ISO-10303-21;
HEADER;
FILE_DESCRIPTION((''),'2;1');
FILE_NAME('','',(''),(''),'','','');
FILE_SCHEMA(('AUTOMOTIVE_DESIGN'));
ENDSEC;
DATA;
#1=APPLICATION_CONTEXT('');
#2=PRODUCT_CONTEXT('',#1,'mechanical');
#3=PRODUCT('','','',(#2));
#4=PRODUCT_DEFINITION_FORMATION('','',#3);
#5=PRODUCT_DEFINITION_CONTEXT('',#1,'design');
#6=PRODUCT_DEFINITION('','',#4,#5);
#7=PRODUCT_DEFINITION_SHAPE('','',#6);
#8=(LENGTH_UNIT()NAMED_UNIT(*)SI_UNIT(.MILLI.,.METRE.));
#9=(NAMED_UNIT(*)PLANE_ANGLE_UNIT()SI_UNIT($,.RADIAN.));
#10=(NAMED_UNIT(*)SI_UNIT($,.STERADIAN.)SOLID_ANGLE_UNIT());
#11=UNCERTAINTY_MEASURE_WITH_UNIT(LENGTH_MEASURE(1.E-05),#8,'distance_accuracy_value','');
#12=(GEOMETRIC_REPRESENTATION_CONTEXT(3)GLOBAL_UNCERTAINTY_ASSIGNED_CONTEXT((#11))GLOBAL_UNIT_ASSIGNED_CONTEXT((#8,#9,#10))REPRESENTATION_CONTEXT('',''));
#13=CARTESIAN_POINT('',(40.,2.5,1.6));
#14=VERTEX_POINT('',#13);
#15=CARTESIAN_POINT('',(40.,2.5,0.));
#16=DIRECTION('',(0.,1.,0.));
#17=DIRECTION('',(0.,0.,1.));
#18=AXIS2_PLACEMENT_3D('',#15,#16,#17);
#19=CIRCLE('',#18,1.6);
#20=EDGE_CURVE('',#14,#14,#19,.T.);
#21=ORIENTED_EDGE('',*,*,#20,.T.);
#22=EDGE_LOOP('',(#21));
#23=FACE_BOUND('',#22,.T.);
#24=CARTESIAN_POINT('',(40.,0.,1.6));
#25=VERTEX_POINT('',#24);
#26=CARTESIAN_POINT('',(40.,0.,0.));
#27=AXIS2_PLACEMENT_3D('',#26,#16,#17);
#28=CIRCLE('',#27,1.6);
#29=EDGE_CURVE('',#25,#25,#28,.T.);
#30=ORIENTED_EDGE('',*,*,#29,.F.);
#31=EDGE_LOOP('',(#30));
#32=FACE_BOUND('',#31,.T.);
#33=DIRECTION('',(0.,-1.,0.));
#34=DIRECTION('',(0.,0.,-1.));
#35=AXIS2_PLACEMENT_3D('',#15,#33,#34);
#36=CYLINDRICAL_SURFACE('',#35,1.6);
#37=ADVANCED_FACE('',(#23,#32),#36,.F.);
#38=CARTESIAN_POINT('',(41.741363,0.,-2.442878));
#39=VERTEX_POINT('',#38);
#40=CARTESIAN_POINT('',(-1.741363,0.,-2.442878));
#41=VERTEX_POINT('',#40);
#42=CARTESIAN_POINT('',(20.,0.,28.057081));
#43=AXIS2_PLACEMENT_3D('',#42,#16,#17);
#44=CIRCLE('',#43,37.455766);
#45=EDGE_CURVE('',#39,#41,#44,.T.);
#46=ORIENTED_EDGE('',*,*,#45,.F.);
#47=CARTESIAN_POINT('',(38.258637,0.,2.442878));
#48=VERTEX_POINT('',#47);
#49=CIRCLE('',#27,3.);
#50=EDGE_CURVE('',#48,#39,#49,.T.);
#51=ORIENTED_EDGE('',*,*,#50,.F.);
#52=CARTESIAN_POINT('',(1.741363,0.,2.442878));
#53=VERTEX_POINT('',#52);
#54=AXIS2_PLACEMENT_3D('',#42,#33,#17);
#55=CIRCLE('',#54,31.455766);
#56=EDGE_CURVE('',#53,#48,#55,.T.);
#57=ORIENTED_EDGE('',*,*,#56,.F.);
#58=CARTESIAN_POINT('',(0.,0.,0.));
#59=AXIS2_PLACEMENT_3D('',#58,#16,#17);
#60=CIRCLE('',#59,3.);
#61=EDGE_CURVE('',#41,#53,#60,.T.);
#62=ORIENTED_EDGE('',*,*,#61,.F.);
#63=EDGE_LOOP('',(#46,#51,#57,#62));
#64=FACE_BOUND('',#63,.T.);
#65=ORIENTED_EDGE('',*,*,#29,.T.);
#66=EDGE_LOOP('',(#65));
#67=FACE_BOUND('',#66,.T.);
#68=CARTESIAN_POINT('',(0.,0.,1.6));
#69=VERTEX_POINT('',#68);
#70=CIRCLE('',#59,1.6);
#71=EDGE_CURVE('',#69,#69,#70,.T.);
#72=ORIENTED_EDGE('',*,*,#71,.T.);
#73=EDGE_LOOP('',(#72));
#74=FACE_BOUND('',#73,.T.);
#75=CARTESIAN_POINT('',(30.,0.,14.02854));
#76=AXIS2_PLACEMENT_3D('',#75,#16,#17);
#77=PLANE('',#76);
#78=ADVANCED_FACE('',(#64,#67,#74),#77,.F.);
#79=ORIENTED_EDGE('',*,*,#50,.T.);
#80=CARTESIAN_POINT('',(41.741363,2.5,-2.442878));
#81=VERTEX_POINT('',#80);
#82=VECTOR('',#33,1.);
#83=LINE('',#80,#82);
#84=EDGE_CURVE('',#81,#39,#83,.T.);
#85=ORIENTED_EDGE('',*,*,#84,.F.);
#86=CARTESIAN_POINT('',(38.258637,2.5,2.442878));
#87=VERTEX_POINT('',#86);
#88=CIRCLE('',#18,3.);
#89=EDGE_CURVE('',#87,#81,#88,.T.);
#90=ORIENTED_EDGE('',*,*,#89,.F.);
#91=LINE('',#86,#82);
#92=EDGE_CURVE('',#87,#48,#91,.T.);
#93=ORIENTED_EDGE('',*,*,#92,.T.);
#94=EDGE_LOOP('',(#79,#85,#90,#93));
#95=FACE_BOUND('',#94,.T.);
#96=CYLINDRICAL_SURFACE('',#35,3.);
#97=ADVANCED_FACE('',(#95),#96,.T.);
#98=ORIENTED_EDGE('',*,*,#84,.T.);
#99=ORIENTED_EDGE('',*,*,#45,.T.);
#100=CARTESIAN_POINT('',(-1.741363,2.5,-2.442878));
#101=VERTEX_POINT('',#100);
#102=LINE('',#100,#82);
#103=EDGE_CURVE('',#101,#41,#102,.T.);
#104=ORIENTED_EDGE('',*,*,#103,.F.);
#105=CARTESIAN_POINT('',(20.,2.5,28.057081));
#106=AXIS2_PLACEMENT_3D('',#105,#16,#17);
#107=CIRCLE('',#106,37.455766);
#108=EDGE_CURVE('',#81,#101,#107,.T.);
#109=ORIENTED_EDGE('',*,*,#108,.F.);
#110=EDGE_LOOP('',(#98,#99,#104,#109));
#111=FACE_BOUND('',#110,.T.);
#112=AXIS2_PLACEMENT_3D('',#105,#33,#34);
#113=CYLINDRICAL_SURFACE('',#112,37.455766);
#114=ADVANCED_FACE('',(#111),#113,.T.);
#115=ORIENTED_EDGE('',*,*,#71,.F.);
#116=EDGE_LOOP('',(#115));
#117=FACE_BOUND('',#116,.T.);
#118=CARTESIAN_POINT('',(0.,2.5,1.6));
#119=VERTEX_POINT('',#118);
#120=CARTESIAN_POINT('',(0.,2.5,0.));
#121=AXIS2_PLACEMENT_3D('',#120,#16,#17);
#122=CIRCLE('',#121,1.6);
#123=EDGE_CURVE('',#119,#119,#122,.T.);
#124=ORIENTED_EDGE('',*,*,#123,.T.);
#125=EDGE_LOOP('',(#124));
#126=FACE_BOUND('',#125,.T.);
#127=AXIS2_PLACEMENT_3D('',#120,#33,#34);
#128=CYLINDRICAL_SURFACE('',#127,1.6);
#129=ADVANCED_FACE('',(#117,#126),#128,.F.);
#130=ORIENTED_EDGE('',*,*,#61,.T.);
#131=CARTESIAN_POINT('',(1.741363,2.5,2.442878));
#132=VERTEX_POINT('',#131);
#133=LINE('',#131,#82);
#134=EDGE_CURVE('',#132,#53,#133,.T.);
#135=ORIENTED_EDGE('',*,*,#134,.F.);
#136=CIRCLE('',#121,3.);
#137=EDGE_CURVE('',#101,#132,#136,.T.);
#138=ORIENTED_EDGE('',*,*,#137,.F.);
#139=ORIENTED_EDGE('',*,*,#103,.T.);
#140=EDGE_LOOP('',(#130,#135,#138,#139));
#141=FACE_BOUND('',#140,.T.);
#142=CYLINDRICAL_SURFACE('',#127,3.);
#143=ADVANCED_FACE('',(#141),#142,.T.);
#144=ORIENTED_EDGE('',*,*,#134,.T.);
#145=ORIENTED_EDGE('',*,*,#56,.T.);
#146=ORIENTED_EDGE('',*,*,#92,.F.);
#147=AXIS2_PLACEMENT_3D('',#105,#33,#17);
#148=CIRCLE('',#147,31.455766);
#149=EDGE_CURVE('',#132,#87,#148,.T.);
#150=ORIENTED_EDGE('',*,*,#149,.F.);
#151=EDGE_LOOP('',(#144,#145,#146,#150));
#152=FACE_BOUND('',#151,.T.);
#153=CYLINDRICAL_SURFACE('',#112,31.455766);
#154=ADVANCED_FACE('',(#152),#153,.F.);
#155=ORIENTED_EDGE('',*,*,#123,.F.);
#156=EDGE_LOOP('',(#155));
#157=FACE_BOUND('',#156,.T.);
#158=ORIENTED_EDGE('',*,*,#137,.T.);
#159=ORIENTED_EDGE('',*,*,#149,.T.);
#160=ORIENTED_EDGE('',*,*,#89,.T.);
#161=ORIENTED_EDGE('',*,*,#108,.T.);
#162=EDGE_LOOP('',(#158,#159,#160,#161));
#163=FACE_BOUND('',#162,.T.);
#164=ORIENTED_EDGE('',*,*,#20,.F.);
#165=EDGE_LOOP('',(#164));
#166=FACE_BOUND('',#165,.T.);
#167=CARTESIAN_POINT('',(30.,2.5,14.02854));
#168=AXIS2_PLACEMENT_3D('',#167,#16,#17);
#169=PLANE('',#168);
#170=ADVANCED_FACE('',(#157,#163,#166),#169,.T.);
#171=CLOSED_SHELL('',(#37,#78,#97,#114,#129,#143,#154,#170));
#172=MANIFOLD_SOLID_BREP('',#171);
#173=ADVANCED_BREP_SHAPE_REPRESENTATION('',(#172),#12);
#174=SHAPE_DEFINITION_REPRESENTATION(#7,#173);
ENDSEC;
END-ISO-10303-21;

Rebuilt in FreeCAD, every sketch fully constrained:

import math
import FreeCAD as App
import Part
import Sketcher

V = App.Vector
Q = App.Units.Quantity

doc = App.newDocument("Part")
body = doc.addObject("PartDesign::Body", "Body")

# Sketch on XZ plane
sketch1 = body.newObject("Sketcher::SketchObject", "Sketch")
sketch1.AttachmentSupport = (doc.getObject("XZ_Plane"), [""])
sketch1.MapMode = "FlatFace"
sketch1.addGeometry([
    Part.ArcOfCircle(Part.Circle(V(20, 28.1, 0), V(0, 0, 1), 37.5), math.radians(-125), math.radians(-55)),  # 0
    Part.ArcOfCircle(Part.Circle(V(0, 0, 0), V(0, 0, 1), 3), math.radians(55), math.radians(235)),  # 1
    Part.ArcOfCircle(Part.Circle(V(20, 28.1, 0), V(0, 0, 1), 31.5), math.radians(-125), math.radians(-55)),  # 2
    Part.ArcOfCircle(Part.Circle(V(40, 0, 0), V(0, 0, 1), 3), math.radians(-55), math.radians(125)),  # 3
    Part.Circle(V(0, 0, 0), V(0, 0, 1), 1.6),  # 4
    Part.Circle(V(40, 0, 0), V(0, 0, 1), 1.6),  # 5
], False)
sketch1.addConstraint([
    Sketcher.Constraint("Tangent", 0, 1, 1, 2),
    Sketcher.Constraint("Tangent", 1, 1, 2, 1),
    Sketcher.Constraint("Tangent", 2, 2, 3, 2),
    Sketcher.Constraint("Tangent", 3, 1, 0, 2),
    Sketcher.Constraint("Coincident", 1, 3, -1, 1),
    Sketcher.Constraint("Coincident", 4, 3, -1, 1),
    Sketcher.Constraint("Coincident", 2, 3, 0, 3),
    Sketcher.Constraint("Coincident", 5, 3, 3, 3),
    Sketcher.Constraint("Equal", 4, 5),
    Sketcher.Constraint("PointOnObject", 3, 3, -1),
    Sketcher.Constraint("Radius", 1, Q("3 mm")),
    Sketcher.Constraint("Diameter", 4, Q("3.2 mm")),
    Sketcher.Constraint("DistanceX", -1, 1, 0, 3, Q("20 mm")),
    Sketcher.Constraint("Radius", 0, Q("37.455766 mm")),
])
pad1 = body.newObject("PartDesign::Pad", "Pad")
pad1.Profile = sketch1
pad1.Length = 2.5
pad1.Reversed = True

doc.recompute()
